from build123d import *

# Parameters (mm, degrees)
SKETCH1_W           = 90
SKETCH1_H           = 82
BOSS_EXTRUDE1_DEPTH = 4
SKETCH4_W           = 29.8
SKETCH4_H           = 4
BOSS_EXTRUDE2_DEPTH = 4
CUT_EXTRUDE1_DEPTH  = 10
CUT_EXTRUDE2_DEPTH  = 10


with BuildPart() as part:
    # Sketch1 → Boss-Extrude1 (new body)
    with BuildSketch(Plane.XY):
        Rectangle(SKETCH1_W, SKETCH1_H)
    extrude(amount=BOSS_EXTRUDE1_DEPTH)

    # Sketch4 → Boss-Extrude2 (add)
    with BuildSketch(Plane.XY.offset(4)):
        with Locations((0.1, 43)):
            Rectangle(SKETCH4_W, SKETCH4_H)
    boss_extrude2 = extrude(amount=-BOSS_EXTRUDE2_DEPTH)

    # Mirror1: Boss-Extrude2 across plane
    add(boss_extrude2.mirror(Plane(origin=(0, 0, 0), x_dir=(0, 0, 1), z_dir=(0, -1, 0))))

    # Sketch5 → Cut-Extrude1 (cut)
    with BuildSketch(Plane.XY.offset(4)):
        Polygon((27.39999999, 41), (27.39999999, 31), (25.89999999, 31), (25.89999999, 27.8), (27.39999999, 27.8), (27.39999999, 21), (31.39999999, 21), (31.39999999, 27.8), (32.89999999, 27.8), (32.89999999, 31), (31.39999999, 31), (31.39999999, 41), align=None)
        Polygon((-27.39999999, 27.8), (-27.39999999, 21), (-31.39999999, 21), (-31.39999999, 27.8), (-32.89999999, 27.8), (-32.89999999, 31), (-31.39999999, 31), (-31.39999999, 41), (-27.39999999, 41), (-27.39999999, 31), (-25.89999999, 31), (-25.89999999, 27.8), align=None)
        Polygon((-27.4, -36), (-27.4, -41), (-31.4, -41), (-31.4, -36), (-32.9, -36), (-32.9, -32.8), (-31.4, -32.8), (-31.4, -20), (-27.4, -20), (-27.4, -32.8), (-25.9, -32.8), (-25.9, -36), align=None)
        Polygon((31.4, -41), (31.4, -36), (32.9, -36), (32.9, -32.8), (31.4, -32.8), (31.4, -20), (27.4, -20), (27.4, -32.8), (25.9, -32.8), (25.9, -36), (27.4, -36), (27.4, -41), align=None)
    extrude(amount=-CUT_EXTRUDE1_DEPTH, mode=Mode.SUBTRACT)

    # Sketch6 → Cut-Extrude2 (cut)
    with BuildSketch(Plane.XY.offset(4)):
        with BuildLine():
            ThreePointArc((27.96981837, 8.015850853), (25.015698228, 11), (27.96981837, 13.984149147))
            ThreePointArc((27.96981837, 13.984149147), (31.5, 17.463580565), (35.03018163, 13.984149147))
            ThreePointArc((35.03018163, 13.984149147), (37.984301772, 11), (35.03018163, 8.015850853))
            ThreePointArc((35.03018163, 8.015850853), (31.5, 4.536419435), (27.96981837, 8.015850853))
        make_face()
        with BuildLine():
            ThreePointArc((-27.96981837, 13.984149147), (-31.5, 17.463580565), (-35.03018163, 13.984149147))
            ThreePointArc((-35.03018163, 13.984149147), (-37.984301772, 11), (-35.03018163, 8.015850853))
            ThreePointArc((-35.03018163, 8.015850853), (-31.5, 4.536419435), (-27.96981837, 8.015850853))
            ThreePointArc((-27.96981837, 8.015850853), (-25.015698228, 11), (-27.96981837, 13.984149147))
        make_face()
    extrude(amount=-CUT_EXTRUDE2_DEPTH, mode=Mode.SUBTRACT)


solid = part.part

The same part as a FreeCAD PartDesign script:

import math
import FreeCAD as App
import Part
import Sketcher

V = App.Vector

doc = App.newDocument("Part")
params = doc.addObject("Spreadsheet::Sheet", "Params")
for row, (alias, value) in enumerate([
    ("sketch1_width", "90 mm"),
    ("sketch1_height", "82 mm"),
    ("pad1_length", "4 mm"),
    ("sketch2_height", "4 mm"),
    ("sketch2_width", "29.8 mm"),
    ("pad2_length", "4 mm"),
    ("sketch3_width", "4 mm"),
    ("sketch3_height", "10 mm"),
    ("sketch3_height2", "5 mm"),
    ("sketch3_width2", "1.5 mm"),
    ("sketch3_height3", "3.2 mm"),
    ("pocket1_length", "10 mm"),
    ("pocket2_length", "10 mm"),
], start=1):
    params.set(f"A{row}", alias)
    params.set(f"B{row}", "=" + value)
    params.setAlias(f"B{row}", alias)

body = doc.addObject("PartDesign::Body", "Body")

# Sketch on XY plane
sketch1 = body.newObject("Sketcher::SketchObject", "Sketch")
sketch1.AttachmentSupport = (doc.getObject("XY_Plane"), [""])
sketch1.MapMode = "FlatFace"
sketch1.addGeometry([
    Part.LineSegment(V(-45, 41, 0), V(-45, -41, 0)),
    Part.LineSegment(V(-45, -41, 0), V(45, -41, 0)),
    Part.LineSegment(V(45, -41, 0), V(45, 41, 0)),
    Part.LineSegment(V(45, 41, 0), V(-45, 41, 0)),
], False)
sketch1.addConstraint([
    Sketcher.Constraint("Coincident", 0, 2, 1, 1),
    Sketcher.Constraint("Coincident", 1, 2, 2, 1),
    Sketcher.Constraint("Coincident", 2, 2, 3, 1),
    Sketcher.Constraint("Coincident", 3, 2, 0, 1),
    Sketcher.Constraint("Vertical", 0),
    Sketcher.Constraint("Horizontal", 1),
    Sketcher.Constraint("Vertical", 2),
    Sketcher.Constraint("Horizontal", 3),
    Sketcher.Constraint("Symmetric", 0, 2, 2, 2, -1, 1),
    Sketcher.Constraint("DistanceX", 1, 1, 1, 2, 90.0),
    Sketcher.Constraint("DistanceY", 0, 2, 0, 1, 82.0),
])
sketch1.setExpression("Constraints[9]", "Params.sketch1_width")
sketch1.setExpression("Constraints[10]", "Params.sketch1_height")
pad1 = body.newObject("PartDesign::Pad", "Pad")
pad1.Profile = sketch1
pad1.setExpression("Length", "Params.pad1_length")

# Sketch on XY plane
sketch2 = body.newObject("Sketcher::SketchObject", "Sketch001")
sketch2.AttachmentSupport = (doc.getObject("XY_Plane"), [""])
sketch2.MapMode = "FlatFace"
sketch2.AttachmentOffset = App.Placement(V(0, 0, 4), App.Rotation())
sketch2.addGeometry([
    Part.LineSegment(V(-14.8, 45, 0), V(-14.8, 41, 0)),
    Part.LineSegment(V(-14.8, 41, 0), V(15, 41, 0)),
    Part.LineSegment(V(15, 41, 0), V(15, 45, 0)),
    Part.LineSegment(V(15, 45, 0), V(-14.8, 45, 0)),
], False)
sketch2.addConstraint([
    Sketcher.Constraint("Coincident", 0, 2, 1, 1),
    Sketcher.Constraint("Coincident", 1, 2, 2, 1),
    Sketcher.Constraint("Coincident", 2, 2, 3, 1),
    Sketcher.Constraint("Coincident", 3, 2, 0, 1),
    Sketcher.Constraint("Vertical", 0),
    Sketcher.Constraint("Horizontal", 1),
    Sketcher.Constraint("Vertical", 2),
    Sketcher.Constraint("Horizontal", 3),
    Sketcher.Constraint("DistanceY", 0, 2, 0, 1, 4.0),
    Sketcher.Constraint("DistanceX", 1, 1, 1, 2, 29.8),
    Sketcher.Constraint("DistanceY", -1, 1, 0, 2, 41.0),
    Sketcher.Constraint("DistanceX", -1, 1, 1, 2, 15.0),
])
sketch2.setExpression("Constraints[8]", "Params.sketch2_height")
sketch2.setExpression("Constraints[9]", "Params.sketch2_width")
pad2 = body.newObject("PartDesign::Pad", "Pad001")
pad2.Profile = sketch2
pad2.setExpression("Length", "Params.pad2_length")
pad2.Reversed = True
doc.recompute()

mirrored = body.newObject("PartDesign::Mirrored", "Mirrored")
mirrored.Originals = [pad2]
mirrored.MirrorPlane = (doc.getObject("XZ_Plane"), [""])
body.Tip = mirrored

# Sketch on XY plane
sketch3 = body.newObject("Sketcher::SketchObject", "Sketch002")
sketch3.AttachmentSupport = (doc.getObject("XY_Plane"), [""])
sketch3.MapMode = "FlatFace"
sketch3.AttachmentOffset = App.Placement(V(0, 0, 4), App.Rotation())
sketch3.addGeometry([
    Part.LineSegment(V(27.4, 41, 0), V(27.4, 31, 0)),  # 0
    Part.LineSegment(V(27.4, 31, 0), V(25.9, 31, 0)),  # 1
    Part.LineSegment(V(25.9, 31, 0), V(25.9, 27.8, 0)),  # 2
    Part.LineSegment(V(25.9, 27.8, 0), V(27.4, 27.8, 0)),  # 3
    Part.LineSegment(V(27.4, 27.8, 0), V(27.4, 21, 0)),  # 4
    Part.LineSegment(V(27.4, 21, 0), V(31.4, 21, 0)),  # 5
    Part.LineSegment(V(31.4, 21, 0), V(31.4, 27.8, 0)),  # 6
    Part.LineSegment(V(31.4, 27.8, 0), V(32.9, 27.8, 0)),  # 7
    Part.LineSegment(V(32.9, 27.8, 0), V(32.9, 31, 0)),  # 8
    Part.LineSegment(V(32.9, 31, 0), V(31.4, 31, 0)),  # 9
    Part.LineSegment(V(31.4, 31, 0), V(31.4, 41, 0)),  # 10
    Part.LineSegment(V(31.4, 41, 0), V(27.4, 41, 0)),  # 11
    Part.LineSegment(V(-27.4, 21, 0), V(-27.4, 27.8, 0)),  # 12
    Part.LineSegment(V(-27.4, 27.8, 0), V(-25.9, 27.8, 0)),  # 13
    Part.LineSegment(V(-25.9, 27.8, 0), V(-25.9, 31, 0)),  # 14
    Part.LineSegment(V(-25.9, 31, 0), V(-27.4, 31, 0)),  # 15
    Part.LineSegment(V(-27.4, 31, 0), V(-27.4, 41, 0)),  # 16
    Part.LineSegment(V(-27.4, 41, 0), V(-31.4, 41, 0)),  # 17
    Part.LineSegment(V(-31.4, 41, 0), V(-31.4, 31, 0)),  # 18
    Part.LineSegment(V(-31.4, 31, 0), V(-32.9, 31, 0)),  # 19
    Part.LineSegment(V(-32.9, 31, 0), V(-32.9, 27.8, 0)),  # 20
    Part.LineSegment(V(-32.9, 27.8, 0), V(-31.4, 27.8, 0)),  # 21
    Part.LineSegment(V(-31.4, 27.8, 0), V(-31.4, 21, 0)),  # 22
    Part.LineSegment(V(-31.4, 21, 0), V(-27.4, 21, 0)),  # 23
    Part.LineSegment(V(-27.4, -41, 0), V(-27.4, -36, 0)),  # 24
    Part.LineSegment(V(-27.4, -36, 0), V(-25.9, -36, 0)),  # 25
    Part.LineSegment(V(-25.9, -36, 0), V(-25.9, -32.8, 0)),  # 26
    Part.LineSegment(V(-25.9, -32.8, 0), V(-27.4, -32.8, 0)),  # 27
    Part.LineSegment(V(-27.4, -32.8, 0), V(-27.4, -20, 0)),  # 28
    Part.LineSegment(V(-27.4, -20, 0), V(-31.4, -20, 0)),  # 29
    Part.LineSegment(V(-31.4, -20, 0), V(-31.4, -32.8, 0)),  # 30
    Part.LineSegment(V(-31.4, -32.8, 0), V(-32.9, -32.8, 0)),  # 31
    Part.LineSegment(V(-32.9, -32.8, 0), V(-32.9, -36, 0)),  # 32
    Part.LineSegment(V(-32.9, -36, 0), V(-31.4, -36, 0)),  # 33
    Part.LineSegment(V(-31.4, -36, 0), V(-31.4, -41, 0)),  # 34
    Part.LineSegment(V(-31.4, -41, 0), V(-27.4, -41, 0)),  # 35
    Part.LineSegment(V(31.4, -41, 0), V(31.4, -36, 0)),  # 36
    Part.LineSegment(V(31.4, -36, 0), V(32.9, -36, 0)),  # 37
    Part.LineSegment(V(32.9, -36, 0), V(32.9, -32.8, 0)),  # 38
    Part.LineSegment(V(32.9, -32.8, 0), V(31.4, -32.8, 0)),  # 39
    Part.LineSegment(V(31.4, -32.8, 0), V(31.4, -20, 0)),  # 40
    Part.LineSegment(V(31.4, -20, 0), V(27.4, -20, 0)),  # 41
    Part.LineSegment(V(27.4, -20, 0), V(27.4, -32.8, 0)),  # 42
    Part.LineSegment(V(27.4, -32.8, 0), V(25.9, -32.8, 0)),  # 43
    Part.LineSegment(V(25.9, -32.8, 0), V(25.9, -36, 0)),  # 44
    Part.LineSegment(V(25.9, -36, 0), V(27.4, -36, 0)),  # 45
    Part.LineSegment(V(27.4, -36, 0), V(27.4, -41, 0)),  # 46
    Part.LineSegment(V(27.4, -41, 0), V(31.4, -41, 0)),  # 47
], False)
sketch3.addConstraint([
    Sketcher.Constraint("Coincident", 0, 2, 1, 1),
    Sketcher.Constraint("Coincident", 1, 2, 2, 1),
    Sketcher.Constraint("Coincident", 2, 2, 3, 1),
    Sketcher.Constraint("Coincident", 3, 2, 4, 1),
    Sketcher.Constraint("Coincident", 4, 2, 5, 1),
    Sketcher.Constraint("Coincident", 5, 2, 6, 1),
    Sketcher.Constraint("Coincident", 6, 2, 7, 1),
    Sketcher.Constraint("Coincident", 7, 2, 8, 1),
    Sketcher.Constraint("Coincident", 8, 2, 9, 1),
    Sketcher.Constraint("Coincident", 9, 2, 10, 1),
    Sketcher.Constraint("Coincident", 10, 2, 11, 1),
    Sketcher.Constraint("Coincident", 11, 2, 0, 1),
    Sketcher.Constraint("Coincident", 12, 2, 13, 1),
    Sketcher.Constraint("Coincident", 13, 2, 14, 1),
    Sketcher.Constraint("Coincident", 14, 2, 15, 1),
    Sketcher.Constraint("Coincident", 15, 2, 16, 1),
    Sketcher.Constraint("Coincident", 16, 2, 17, 1),
    Sketcher.Constraint("Coincident", 17, 2, 18, 1),
    Sketcher.Constraint("Coincident", 18, 2, 19, 1),
    Sketcher.Constraint("Coincident", 19, 2, 20, 1),
    Sketcher.Constraint("Coincident", 20, 2, 21, 1),
    Sketcher.Constraint("Coincident", 21, 2, 22, 1),
    Sketcher.Constraint("Coincident", 22, 2, 23, 1),
    Sketcher.Constraint("Coincident", 23, 2, 12, 1),
    Sketcher.Constraint("Coincident", 24, 2, 25, 1),
    Sketcher.Constraint("Coincident", 25, 2, 26, 1),
    Sketcher.Constraint("Coincident", 26, 2, 27, 1),
    Sketcher.Constraint("Coincident", 27, 2, 28, 1),
    Sketcher.Constraint("Coincident", 28, 2, 29, 1),
    Sketcher.Constraint("Coincident", 29, 2, 30, 1),
    Sketcher.Constraint("Coincident", 30, 2, 31, 1),
    Sketcher.Constraint("Coincident", 31, 2, 32, 1),
    Sketcher.Constraint("Coincident", 32, 2, 33, 1),
    Sketcher.Constraint("Coincident", 33, 2, 34, 1),
    Sketcher.Constraint("Coincident", 34, 2, 35, 1),
    Sketcher.Constraint("Coincident", 35, 2, 24, 1),
    Sketcher.Constraint("Coincident", 36, 2, 37, 1),
    Sketcher.Constraint("Coincident", 37, 2, 38, 1),
    Sketcher.Constraint("Coincident", 38, 2, 39, 1),
    Sketcher.Constraint("Coincident", 39, 2, 40, 1),
    Sketcher.Constraint("Coincident", 40, 2, 41, 1),
    Sketcher.Constraint("Coincident", 41, 2, 42, 1),
    Sketcher.Constraint("Coincident", 42, 2, 43, 1),
    Sketcher.Constraint("Coincident", 43, 2, 44, 1),
    Sketcher.Constraint("Coincident", 44, 2, 45, 1),
    Sketcher.Constraint("Coincident", 45, 2, 46, 1),
    Sketcher.Constraint("Coincident", 46, 2, 47, 1),
    Sketcher.Constraint("Coincident", 47, 2, 36, 1),
    Sketcher.Constraint("Vertical", 0),
    Sketcher.Constraint("Horizontal", 1),
    Sketcher.Constraint("Vertical", 2),
    Sketcher.Constraint("Horizontal", 3),
    Sketcher.Constraint("Vertical", 4),
    Sketcher.Constraint("Horizontal", 5),
    Sketcher.Constraint("Vertical", 6),
    Sketcher.Constraint("Horizontal", 7),
    Sketcher.Constraint("Vertical", 8),
    Sketcher.Constraint("Horizontal", 9),
    Sketcher.Constraint("Vertical", 10),
    Sketcher.Constraint("Horizontal", 11),
    Sketcher.Constraint("Vertical", 12),
    Sketcher.Constraint("Horizontal", 13),
    Sketcher.Constraint("Vertical", 14),
    Sketcher.Constraint("Horizontal", 15),
    Sketcher.Constraint("Vertical", 16),
    Sketcher.Constraint("Horizontal", 17),
    Sketcher.Constraint("Vertical", 18),
    Sketcher.Constraint("Horizontal", 19),
    Sketcher.Constraint("Vertical", 20),
    Sketcher.Constraint("Horizontal", 21),
    Sketcher.Constraint("Vertical", 22),
    Sketcher.Constraint("Horizontal", 23),
    Sketcher.Constraint("Vertical", 24),
    Sketcher.Constraint("Horizontal", 25),
    Sketcher.Constraint("Vertical", 26),
    Sketcher.Constraint("Horizontal", 27),
    Sketcher.Constraint("Vertical", 28),
    Sketcher.Constraint("Horizontal", 29),
    Sketcher.Constraint("Vertical", 30),
    Sketcher.Constraint("Horizontal", 31),
    Sketcher.Constraint("Vertical", 32),
    Sketcher.Constraint("Horizontal", 33),
    Sketcher.Constraint("Vertical", 34),
    Sketcher.Constraint("Horizontal", 35),
    Sketcher.Constraint("Vertical", 36),
    Sketcher.Constraint("Horizontal", 37),
    Sketcher.Constraint("Vertical", 38),
    Sketcher.Constraint("Horizontal", 39),
    Sketcher.Constraint("Vertical", 40),
    Sketcher.Constraint("Horizontal", 41),
    Sketcher.Constraint("Vertical", 42),
    Sketcher.Constraint("Horizontal", 43),
    Sketcher.Constraint("Vertical", 44),
    Sketcher.Constraint("Horizontal", 45),
    Sketcher.Constraint("Vertical", 46),
    Sketcher.Constraint("Horizontal", 47),
    Sketcher.Constraint("Symmetric", 10, 2, 34, 2, -1, 1),
    Sketcher.Constraint("Symmetric", 16, 2, 46, 2, -1, 1),
    Sketcher.Constraint("Symmetric", 3, 2, 12, 2, -2),
    Sketcher.Constraint("Symmetric", 1, 2, 14, 2, -2),
    Sketcher.Constraint("Symmetric", 11, 2, 16, 2, -2),
    Sketcher.Constraint("Symmetric", 9, 2, 18, 2, -2),
    Sketcher.Constraint("Symmetric", 7, 2, 20, 2, -2),
    Sketcher.Constraint("Symmetric", 5, 2, 22, 2, -2),
    Sketcher.Constraint("Symmetric", 33, 2, 36, 2, -2),
    Sketcher.Constraint("Symmetric", 31, 2, 38, 2, -2),
    Sketcher.Constraint("Symmetric", 29, 2, 40, 2, -2),
    Sketcher.Constraint("Symmetric", 27, 2, 42, 2, -2),
    Sketcher.Constraint("Symmetric", 25, 2, 44, 2, -2),
    Sketcher.Constraint("Horizontal", 3, 2, 6, 2),
    Sketcher.Constraint("Horizontal", 1, 2, 8, 2),
    Sketcher.Constraint("Horizontal", 27, 2, 30, 2),
    Sketcher.Constraint("Horizontal", 25, 2, 32, 2),
    Sketcher.Constraint("Vertical", 0, 2, 3, 2),
    Sketcher.Constraint("Vertical", 6, 2, 9, 2),
    Sketcher.Constraint("Vertical", 23, 2, 24, 2),
    Sketcher.Constraint("Vertical", 14, 2, 25, 2),
    Sketcher.Constraint("Vertical", 24, 2, 27, 2),
    Sketcher.Constraint("Vertical", 22, 2, 29, 2),
    Sketcher.Constraint("Vertical", 20, 2, 31, 2),
    Sketcher.Constraint("Equal", 3, 7),
    Sketcher.Constraint("Equal", 20, 26),
    Sketcher.Constraint("DistanceX", 5, 1, 5, 2, 4.0),
    Sketcher.Constraint("DistanceY", 0, 2, 0, 1, 10.0),
    Sketcher.Constraint("DistanceY", 24, 1, 24, 2, 5.0),
    Sketcher.Constraint("DistanceX", 1, 2, 1, 1, 1.5),
    Sketcher.Constraint("DistanceY", 2, 2, 2, 1, 3.2),
    Sketcher.Constraint("DistanceY", 4, 2, 4, 1, 6.8),
    Sketcher.Constraint("DistanceY", 28, 1, 28, 2, 12.8),
    Sketcher.Constraint("DistanceY", -1, 1, 0, 2, 31.0),
    Sketcher.Constraint("DistanceX", -1, 1, 0, 2, 27.4),
])
sketch3.setExpression("Constraints[122]", "Params.sketch3_width")
sketch3.setExpression("Constraints[123]", "Params.sketch3_height")
sketch3.setExpression("Constraints[124]", "Params.sketch3_height2")
sketch3.setExpression("Constraints[125]", "Params.sketch3_width2")
sketch3.setExpression("Constraints[126]", "Params.sketch3_height3")
pocket1 = body.newObject("PartDesign::Pocket", "Pocket")
pocket1.Profile = sketch3
pocket1.setExpression("Length", "Params.pocket1_length")

# Sketch on XY plane
sketch4 = body.newObject("Sketcher::SketchObject", "Sketch003")
sketch4.AttachmentSupport = (doc.getObject("XY_Plane"), [""])
sketch4.MapMode = "FlatFace"
sketch4.AttachmentOffset = App.Placement(V(0, 0, 4), App.Rotation())
sketch4.addGeometry([
    Part.ArcOfCircle(Part.Circle(V(28, 11, 0), V(0, 0, 1), 3), math.radians(91), math.radians(269)),  # 0
    Part.ArcOfCircle(Part.Circle(V(31.5, 8.1, 0), V(0, 0, 1), 3.5), math.radians(-179), math.radians(-1)),  # 1
    Part.ArcOfCircle(Part.Circle(V(35, 11, 0), V(0, 0, 1), 3), math.radians(-89), math.radians(89)),  # 2
    Part.ArcOfCircle(Part.Circle(V(31.5, 13.9, 0), V(0, 0, 1), 3.5), math.radians(1), math.radians(179)),  # 3
    Part.ArcOfCircle(Part.Circle(V(-31.5, 13.9, 0), V(0, 0, 1), 3.5), math.radians(1), math.radians(179)),  # 4
    Part.ArcOfCircle(Part.Circle(V(-35, 11, 0), V(0, 0, 1), 3), math.radians(91), math.radians(269)),  # 5
    Part.ArcOfCircle(Part.Circle(V(-31.5, 8.1, 0), V(0, 0, 1), 3.5), math.radians(-179), math.radians(-1)),  # 6
    Part.ArcOfCircle(Part.Circle(V(-28, 11, 0), V(0, 0, 1), 3), math.radians(-89), math.radians(89)),  # 7
], False)
sketch4.addConstraint([
    Sketcher.Constraint("Coincident", 0, 2, 1, 1),
    Sketcher.Constraint("Coincident", 1, 2, 2, 1),
    Sketcher.Constraint("Coincident", 2, 2, 3, 1),
    Sketcher.Constraint("Coincident", 3, 2, 0, 1),
    Sketcher.Constraint("Coincident", 4, 2, 5, 1),
    Sketcher.Constraint("Coincident", 5, 2, 6, 1),
    Sketcher.Constraint("Coincident", 6, 2, 7, 1),
    Sketcher.Constraint("Coincident", 7, 2, 4, 1),
    Sketcher.Constraint("Equal", 0, 2),
    Sketcher.Constraint("Equal", 1, 3),
    Sketcher.Constraint("Equal", 3, 4),
    Sketcher.Constraint("Equal", 2, 5),
    Sketcher.Constraint("Equal", 4, 6),
    Sketcher.Constraint("Equal", 5, 7),
    Sketcher.Constraint("Symmetric", 3, 3, 4, 3, -2),
    Sketcher.Constraint("Symmetric", 2, 3, 5, 3, -2),
    Sketcher.Constraint("Symmetric", 1, 3, 6, 3, -2),
    Sketcher.Constraint("Symmetric", 0, 3, 7, 3, -2),
    Sketcher.Constraint("Horizontal", 0, 3, 2, 3),
    Sketcher.Constraint("Horizontal", 0, 2, 1, 2),
    Sketcher.Constraint("Horizontal", 2, 2, 3, 2),
    Sketcher.Constraint("Vertical", 1, 2, 2, 2),
    Sketcher.Constraint("DistanceX", -1, 1, 0, 3, 28.0),
    Sketcher.Constraint("DistanceY", -1, 1, 0, 3, 11.0),
    Sketcher.Constraint("DistanceX", -1, 1, 2, 3, 35.0),
    Sketcher.Constraint("Radius", 0, 2.984302),
    Sketcher.Constraint("Radius", 1, 3.530552),
    Sketcher.Constraint("DistanceY", -1, 1, 1, 3, 8.066971),
])
pocket2 = body.newObject("PartDesign::Pocket", "Pocket001")
pocket2.Profile = sketch4
pocket2.setExpression("Length", "Params.pocket2_length")

doc.recompute()
